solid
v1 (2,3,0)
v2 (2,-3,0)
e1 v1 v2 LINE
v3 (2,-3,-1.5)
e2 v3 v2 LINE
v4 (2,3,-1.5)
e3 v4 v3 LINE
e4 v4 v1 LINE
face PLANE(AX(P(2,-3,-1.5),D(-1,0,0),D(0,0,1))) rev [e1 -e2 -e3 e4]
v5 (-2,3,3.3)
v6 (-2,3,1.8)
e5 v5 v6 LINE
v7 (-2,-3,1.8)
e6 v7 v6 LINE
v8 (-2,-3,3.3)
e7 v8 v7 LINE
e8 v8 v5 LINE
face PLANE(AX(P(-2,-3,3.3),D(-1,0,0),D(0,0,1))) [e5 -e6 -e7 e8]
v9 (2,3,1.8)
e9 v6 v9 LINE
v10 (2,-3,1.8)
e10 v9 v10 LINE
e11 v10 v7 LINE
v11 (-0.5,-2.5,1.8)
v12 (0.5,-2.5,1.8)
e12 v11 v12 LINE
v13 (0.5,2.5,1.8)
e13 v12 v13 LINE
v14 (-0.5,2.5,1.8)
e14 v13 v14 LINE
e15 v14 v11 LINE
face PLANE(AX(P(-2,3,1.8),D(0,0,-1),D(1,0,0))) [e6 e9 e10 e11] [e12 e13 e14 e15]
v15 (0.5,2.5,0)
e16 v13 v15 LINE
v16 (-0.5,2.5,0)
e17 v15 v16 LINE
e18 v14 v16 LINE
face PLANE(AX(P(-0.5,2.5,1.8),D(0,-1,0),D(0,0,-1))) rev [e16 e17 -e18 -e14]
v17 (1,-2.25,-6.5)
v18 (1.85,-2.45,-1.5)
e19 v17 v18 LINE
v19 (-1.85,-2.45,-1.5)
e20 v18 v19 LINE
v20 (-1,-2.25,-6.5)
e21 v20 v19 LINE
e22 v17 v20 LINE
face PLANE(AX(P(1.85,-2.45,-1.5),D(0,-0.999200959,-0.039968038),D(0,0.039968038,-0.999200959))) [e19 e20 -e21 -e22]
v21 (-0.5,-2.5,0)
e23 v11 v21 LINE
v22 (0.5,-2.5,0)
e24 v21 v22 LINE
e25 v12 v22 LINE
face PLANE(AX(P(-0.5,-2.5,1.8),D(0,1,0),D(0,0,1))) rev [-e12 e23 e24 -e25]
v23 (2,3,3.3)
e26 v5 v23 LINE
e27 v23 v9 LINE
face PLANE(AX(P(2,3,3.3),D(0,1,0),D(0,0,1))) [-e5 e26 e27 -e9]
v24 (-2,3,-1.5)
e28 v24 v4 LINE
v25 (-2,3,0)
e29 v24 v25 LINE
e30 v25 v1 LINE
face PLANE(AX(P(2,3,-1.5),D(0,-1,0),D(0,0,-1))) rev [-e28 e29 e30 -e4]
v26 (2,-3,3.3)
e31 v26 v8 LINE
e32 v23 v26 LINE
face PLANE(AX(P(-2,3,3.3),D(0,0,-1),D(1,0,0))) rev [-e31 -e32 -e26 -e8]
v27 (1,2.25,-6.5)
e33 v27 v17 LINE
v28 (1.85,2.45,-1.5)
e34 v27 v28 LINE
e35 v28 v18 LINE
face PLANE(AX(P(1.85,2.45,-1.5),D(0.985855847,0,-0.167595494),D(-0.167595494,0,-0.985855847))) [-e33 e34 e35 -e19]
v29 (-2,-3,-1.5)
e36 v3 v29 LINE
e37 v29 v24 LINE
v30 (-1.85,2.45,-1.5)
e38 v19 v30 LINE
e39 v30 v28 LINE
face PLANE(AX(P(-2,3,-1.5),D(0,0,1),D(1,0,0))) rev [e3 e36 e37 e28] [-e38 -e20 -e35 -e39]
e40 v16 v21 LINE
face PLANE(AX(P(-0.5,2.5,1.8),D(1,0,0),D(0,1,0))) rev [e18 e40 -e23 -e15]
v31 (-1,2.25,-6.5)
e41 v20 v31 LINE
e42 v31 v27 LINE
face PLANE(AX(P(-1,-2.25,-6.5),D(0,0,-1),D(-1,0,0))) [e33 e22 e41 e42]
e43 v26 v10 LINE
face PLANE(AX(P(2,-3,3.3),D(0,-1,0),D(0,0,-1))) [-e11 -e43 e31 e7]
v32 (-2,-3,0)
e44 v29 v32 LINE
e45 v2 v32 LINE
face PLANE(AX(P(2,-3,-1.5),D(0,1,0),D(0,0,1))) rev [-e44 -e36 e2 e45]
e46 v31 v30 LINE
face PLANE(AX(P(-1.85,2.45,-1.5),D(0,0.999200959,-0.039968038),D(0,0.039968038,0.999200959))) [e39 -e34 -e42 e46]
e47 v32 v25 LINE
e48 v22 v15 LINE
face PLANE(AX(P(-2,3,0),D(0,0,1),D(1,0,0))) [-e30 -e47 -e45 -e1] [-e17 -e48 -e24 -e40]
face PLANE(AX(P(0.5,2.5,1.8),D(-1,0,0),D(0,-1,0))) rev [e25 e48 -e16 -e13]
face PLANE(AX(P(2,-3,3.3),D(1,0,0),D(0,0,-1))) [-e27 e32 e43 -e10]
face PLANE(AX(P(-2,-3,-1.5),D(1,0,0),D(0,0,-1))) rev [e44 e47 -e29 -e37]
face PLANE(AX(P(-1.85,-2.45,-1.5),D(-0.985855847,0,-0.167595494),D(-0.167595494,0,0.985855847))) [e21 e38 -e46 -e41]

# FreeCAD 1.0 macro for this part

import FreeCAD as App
import Part
import Sketcher
from FreeCAD import Vector
Q = App.Units.Quantity

doc = App.newDocument("Part")
body = doc.addObject("PartDesign::Body", "Body")

# Sketch on XY plane
sketch1 = body.newObject("Sketcher::SketchObject", "Sketch")
sketch1.AttachmentSupport = (doc.getObject("XY_Plane"), [""])
sketch1.MapMode = "FlatFace"
sketch1.addGeometry(Part.LineSegment(Vector(-0.5, 2.5, 0), Vector(-0.5, -2.5, 0)), False)
sketch1.addGeometry(Part.LineSegment(Vector(-0.5, -2.5, 0), Vector(0.5, -2.5, 0)), False)
sketch1.addGeometry(Part.LineSegment(Vector(0.5, -2.5, 0), Vector(0.5, 2.5, 0)), False)
sketch1.addGeometry(Part.LineSegment(Vector(0.5, 2.5, 0), Vector(-0.5, 2.5, 0)), False)
sketch1.addConstraint(Sketcher.Constraint("Coincident", 0, 2, 1, 1))
sketch1.addConstraint(Sketcher.Constraint("Coincident", 1, 2, 2, 1))
sketch1.addConstraint(Sketcher.Constraint("Coincident", 2, 2, 3, 1))
sketch1.addConstraint(Sketcher.Constraint("Coincident", 3, 2, 0, 1))
sketch1.addConstraint(Sketcher.Constraint("Vertical", 0))
sketch1.addConstraint(Sketcher.Constraint("Horizontal", 1))
sketch1.addConstraint(Sketcher.Constraint("Vertical", 2))
sketch1.addConstraint(Sketcher.Constraint("Horizontal", 3))
sketch1.addConstraint(Sketcher.Constraint("Symmetric", 0, 2, 2, 2, -1, 1))
sketch1.addConstraint(Sketcher.Constraint("DistanceX", 1, 1, 1, 2, Q("1 mm")))
sketch1.addConstraint(Sketcher.Constraint("DistanceY", 0, 2, 0, 1, Q("5 mm")))
pad1 = body.newObject("PartDesign::Pad", "Pad")
pad1.Profile = sketch1
pad1.Length = 1.8

# Sketch on XY plane
sketch2 = body.newObject("Sketcher::SketchObject", "Sketch001")
sketch2.AttachmentSupport = (doc.getObject("XY_Plane"), [""])
sketch2.MapMode = "FlatFace"
sketch2.addGeometry(Part.LineSegment(Vector(2, 3, 0), Vector(2, -3, 0)), False)
sketch2.addGeometry(Part.LineSegment(Vector(2, -3, 0), Vector(-2, -3, 0)), False)
sketch2.addGeometry(Part.LineSegment(Vector(-2, -3, 0), Vector(-2, 3, 0)), False)
sketch2.addGeometry(Part.LineSegment(Vector(-2, 3, 0), Vector(2, 3, 0)), False)
sketch2.addConstraint(Sketcher.Constraint("Coincident", 0, 2, 1, 1))
sketch2.addConstraint(Sketcher.Constraint("Coincident", 1, 2, 2, 1))
sketch2.addConstraint(Sketcher.Constraint("Coincident", 2, 2, 3, 1))
sketch2.addConstraint(Sketcher.Constraint("Coincident", 3, 2, 0, 1))
sketch2.addConstraint(Sketcher.Constraint("Vertical", 0))
sketch2.addConstraint(Sketcher.Constraint("Horizontal", 1))
sketch2.addConstraint(Sketcher.Constraint("Vertical", 2))
sketch2.addConstraint(Sketcher.Constraint("Horizontal", 3))
sketch2.addConstraint(Sketcher.Constraint("Symmetric", 0, 2, 2, 2, -1, 1))
sketch2.addConstraint(Sketcher.Constraint("DistanceX", 1, 2, 1, 1, Q("4 mm")))
sketch2.addConstraint(Sketcher.Constraint("DistanceY", 0, 2, 0, 1, Q("6 mm")))
pad2 = body.newObject("PartDesign::Pad", "Pad001")
pad2.Profile = sketch2
pad2.Length = 1.5
pad2.Reversed = True
doc.recompute()

datumplane = body.newObject("PartDesign::Plane", "DatumPlane")
datumplane.AttachmentSupport = (doc.getObject("XY_Plane"), [""])
datumplane.MapMode = "FlatFace"
datumplane.AttachmentOffset = App.Placement(Vector(0, 0, 0.9), App.Rotation())
mirrored = body.newObject("PartDesign::Mirrored", "Mirrored")
mirrored.Originals = [pad2]
mirrored.MirrorPlane = (datumplane, [""])
body.Tip = mirrored

# Sketch on XY plane
sketch3 = body.newObject("Sketcher::SketchObject", "Sketch002")
sketch3.AttachmentSupport = (doc.getObject("XY_Plane"), [""])
sketch3.MapMode = "FlatFace"
sketch3.AttachmentOffset = App.Placement(Vector(0, 0, -6.5), App.Rotation())
sketch3.addGeometry(Part.LineSegment(Vector(-1, 2.2, 0), Vector(1, 2.2, 0)), False)
sketch3.addGeometry(Part.LineSegment(Vector(1, 2.2, 0), Vector(1, -2.2, 0)), False)
sketch3.addGeometry(Part.LineSegment(Vector(1, -2.2, 0), Vector(-1, -2.2, 0)), False)
sketch3.addGeometry(Part.LineSegment(Vector(-1, -2.2, 0), Vector(-1, 2.2, 0)), False)
sketch3.addConstraint(Sketcher.Constraint("Coincident", 0, 2, 1, 1))
sketch3.addConstraint(Sketcher.Constraint("Coincident", 1, 2, 2, 1))
sketch3.addConstraint(Sketcher.Constraint("Coincident", 2, 2, 3, 1))
sketch3.addConstraint(Sketcher.Constraint("Coincident", 3, 2, 0, 1))
sketch3.addConstraint(Sketcher.Constraint("Horizontal", 0))
sketch3.addConstraint(Sketcher.Constraint("Vertical", 1))
sketch3.addConstraint(Sketcher.Constraint("Horizontal", 2))
sketch3.addConstraint(Sketcher.Constraint("Vertical", 3))
sketch3.addConstraint(Sketcher.Constraint("Symmetric", 0, 2, 2, 2, -1, 1))
sketch3.addConstraint(Sketcher.Constraint("DistanceX", 0, 1, 0, 2, Q("2 mm")))
sketch3.addConstraint(Sketcher.Constraint("DistanceY", 1, 2, 1, 1, Q("4.5 mm")))

# Sketch on XY plane
sketch4 = body.newObject("Sketcher::SketchObject", "Sketch003")
sketch4.AttachmentSupport = (doc.getObject("XY_Plane"), [""])
sketch4.MapMode = "FlatFace"
sketch4.AttachmentOffset = App.Placement(Vector(0, 0, -1.5), App.Rotation())
sketch4.addGeometry(Part.LineSegment(Vector(-1.9, 2.5, 0), Vector(1.9, 2.5, 0)), False)
sketch4.addGeometry(Part.LineSegment(Vector(1.9, 2.5, 0), Vector(1.9, -2.5, 0)), False)
sketch4.addGeometry(Part.LineSegment(Vector(1.9, -2.5, 0), Vector(-1.9, -2.5, 0)), False)
sketch4.addGeometry(Part.LineSegment(Vector(-1.9, -2.5, 0), Vector(-1.9, 2.5, 0)), False)
sketch4.addConstraint(Sketcher.Constraint("Coincident", 0, 2, 1, 1))
sketch4.addConstraint(Sketcher.Constraint("Coincident", 1, 2, 2, 1))
sketch4.addConstraint(Sketcher.Constraint("Coincident", 2, 2, 3, 1))
sketch4.addConstraint(Sketcher.Constraint("Coincident", 3, 2, 0, 1))
sketch4.addConstraint(Sketcher.Constraint("Horizontal", 0))
sketch4.addConstraint(Sketcher.Constraint("Vertical", 1))
sketch4.addConstraint(Sketcher.Constraint("Horizontal", 2))
sketch4.addConstraint(Sketcher.Constraint("Vertical", 3))
sketch4.addConstraint(Sketcher.Constraint("Symmetric", 0, 2, 2, 2, -1, 1))
sketch4.addConstraint(Sketcher.Constraint("DistanceX", 0, 1, 0, 2, Q("3.7 mm")))
sketch4.addConstraint(Sketcher.Constraint("DistanceY", 1, 2, 1, 1, Q("4.9 mm")))

additiveloft = body.newObject("PartDesign::AdditiveLoft", "AdditiveLoft")
additiveloft.Profile = sketch3
additiveloft.Sections = [sketch4]

doc.recompute()
